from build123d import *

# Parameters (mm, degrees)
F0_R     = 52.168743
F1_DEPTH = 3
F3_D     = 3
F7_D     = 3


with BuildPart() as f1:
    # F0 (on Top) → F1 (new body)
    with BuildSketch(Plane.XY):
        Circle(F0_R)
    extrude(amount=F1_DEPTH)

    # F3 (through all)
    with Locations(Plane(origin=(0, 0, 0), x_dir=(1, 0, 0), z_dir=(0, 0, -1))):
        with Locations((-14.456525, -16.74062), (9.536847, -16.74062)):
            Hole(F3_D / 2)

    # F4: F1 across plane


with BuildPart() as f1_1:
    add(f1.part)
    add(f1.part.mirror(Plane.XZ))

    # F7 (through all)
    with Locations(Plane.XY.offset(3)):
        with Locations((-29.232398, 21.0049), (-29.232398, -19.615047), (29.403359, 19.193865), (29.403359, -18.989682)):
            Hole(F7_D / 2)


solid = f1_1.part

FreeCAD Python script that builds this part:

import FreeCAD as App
import Part
import Sketcher
from FreeCAD import Vector

doc = App.newDocument("Part")
body = doc.addObject("PartDesign::Body", "Body")

# Sketch on XY plane
sketch1 = body.newObject("Sketcher::SketchObject", "Sketch")
sketch1.AttachmentSupport = (doc.getObject("XY_Plane"), [""])
sketch1.MapMode = "FlatFace"
sketch1.addGeometry(Part.Circle(Vector(0, 0, 0), Vector(0, 0, 1), 52.168743), False)
sketch1.addConstraint(Sketcher.Constraint("Coincident", 0, 3, -1, 1))
sketch1.addConstraint(Sketcher.Constraint("Diameter", 0, 104.337486))
pad1 = body.newObject("PartDesign::Pad", "Pad")
pad1.Profile = sketch1
pad1.Length = 3

# Sketch on XY plane
sketch2 = body.newObject("Sketcher::SketchObject", "Sketch001")
sketch2.AttachmentSupport = (doc.getObject("XY_Plane"), [""])
sketch2.MapMode = "FlatFace"
sketch2.addGeometry(Part.Circle(Vector(-14.456525, 16.74062, 0), Vector(0, 0, 1), 1.5), False)
sketch2.addGeometry(Part.Circle(Vector(9.536847, 16.74062, 0), Vector(0, 0, 1), 1.5), False)
sketch2.addConstraint(Sketcher.Constraint("Equal", 0, 1))
sketch2.addConstraint(Sketcher.Constraint("Horizontal", 0, 3, 1, 3))
sketch2.addConstraint(Sketcher.Constraint("Diameter", 0, 3.0))
sketch2.addConstraint(Sketcher.Constraint("DistanceY", -1, 1, 0, 3, 16.74062))
sketch2.addConstraint(Sketcher.Constraint("DistanceX", 0, 3, -1, 1, 14.456525))
sketch2.addConstraint(Sketcher.Constraint("DistanceX", -1, 1, 1, 3, 9.536847))
doc.recompute()
hole = body.newObject("PartDesign::Hole", "Hole")
hole.Profile = sketch2
hole.ThreadType = "None"
hole.Diameter = 3
hole.DepthType = "ThroughAll"
hole.Reversed = True
body2 = doc.addObject("PartDesign::Body", "Body001")
doc.recompute()

body2.BaseFeature = body
doc.recompute()

mirroring = doc.addObject("Part::Mirroring", "Mirroring")
mirroring.Source = body
mirroring.Base = Vector(0, 0, 0)
mirroring.Normal = Vector(0, -1, 0)
body3 = doc.addObject("PartDesign::Body", "Body002")
body3.BaseFeature = mirroring
boolean = body2.newObject("PartDesign::Boolean", "Boolean")
boolean.Type = "Fuse"
boolean.addObjects([body3])
doc.recompute()

# Sketch on XY plane
sketch3 = body2.newObject("Sketcher::SketchObject", "Sketch002")
sketch3.AttachmentSupport = (doc.getObject("XY_Plane001"), [""])
sketch3.MapMode = "FlatFace"
sketch3.AttachmentOffset = App.Placement(Vector(0, 0, 3), App.Rotation())
sketch3.addGeometry(Part.Circle(Vector(-29.232398, 21.0049, 0), Vector(0, 0, 1), 1.5), False)
sketch3.addGeometry(Part.Circle(Vector(-29.232398, -19.615047, 0), Vector(0, 0, 1), 1.5), False)
sketch3.addGeometry(Part.Circle(Vector(29.403359, 19.193865, 0), Vector(0, 0, 1), 1.5), False)
sketch3.addGeometry(Part.Circle(Vector(29.403359, -18.989682, 0), Vector(0, 0, 1), 1.5), False)
sketch3.addConstraint(Sketcher.Constraint("Equal", 0, 1))
sketch3.addConstraint(Sketcher.Constraint("Equal", 1, 2))
sketch3.addConstraint(Sketcher.Constraint("Equal", 2, 3))
sketch3.addConstraint(Sketcher.Constraint("Vertical", 0, 3, 1, 3))
sketch3.addConstraint(Sketcher.Constraint("Vertical", 2, 3, 3, 3))
sketch3.addConstraint(Sketcher.Constraint("Diameter", 0, 3.0))
sketch3.addConstraint(Sketcher.Constraint("DistanceX", 0, 3, -1, 1, 29.232398))
sketch3.addConstraint(Sketcher.Constraint("DistanceY", -1, 1, 0, 3, 21.0049))
sketch3.addConstraint(Sketcher.Constraint("DistanceX", -1, 1, 2, 3, 29.403359))
sketch3.addConstraint(Sketcher.Constraint("DistanceY", 3, 3, -1, 1, 18.989682))
sketch3.addConstraint(Sketcher.Constraint("DistanceY", 1, 3, -1, 1, 19.615047))
sketch3.addConstraint(Sketcher.Constraint("DistanceY", -1, 1, 2, 3, 19.193865))
doc.recompute()
hole2 = body2.newObject("PartDesign::Hole", "Hole001")
hole2.Profile = sketch3
hole2.ThreadType = "None"
hole2.Diameter = 3
hole2.DepthType = "ThroughAll"
mirroring.Visibility = False

doc.recompute()
